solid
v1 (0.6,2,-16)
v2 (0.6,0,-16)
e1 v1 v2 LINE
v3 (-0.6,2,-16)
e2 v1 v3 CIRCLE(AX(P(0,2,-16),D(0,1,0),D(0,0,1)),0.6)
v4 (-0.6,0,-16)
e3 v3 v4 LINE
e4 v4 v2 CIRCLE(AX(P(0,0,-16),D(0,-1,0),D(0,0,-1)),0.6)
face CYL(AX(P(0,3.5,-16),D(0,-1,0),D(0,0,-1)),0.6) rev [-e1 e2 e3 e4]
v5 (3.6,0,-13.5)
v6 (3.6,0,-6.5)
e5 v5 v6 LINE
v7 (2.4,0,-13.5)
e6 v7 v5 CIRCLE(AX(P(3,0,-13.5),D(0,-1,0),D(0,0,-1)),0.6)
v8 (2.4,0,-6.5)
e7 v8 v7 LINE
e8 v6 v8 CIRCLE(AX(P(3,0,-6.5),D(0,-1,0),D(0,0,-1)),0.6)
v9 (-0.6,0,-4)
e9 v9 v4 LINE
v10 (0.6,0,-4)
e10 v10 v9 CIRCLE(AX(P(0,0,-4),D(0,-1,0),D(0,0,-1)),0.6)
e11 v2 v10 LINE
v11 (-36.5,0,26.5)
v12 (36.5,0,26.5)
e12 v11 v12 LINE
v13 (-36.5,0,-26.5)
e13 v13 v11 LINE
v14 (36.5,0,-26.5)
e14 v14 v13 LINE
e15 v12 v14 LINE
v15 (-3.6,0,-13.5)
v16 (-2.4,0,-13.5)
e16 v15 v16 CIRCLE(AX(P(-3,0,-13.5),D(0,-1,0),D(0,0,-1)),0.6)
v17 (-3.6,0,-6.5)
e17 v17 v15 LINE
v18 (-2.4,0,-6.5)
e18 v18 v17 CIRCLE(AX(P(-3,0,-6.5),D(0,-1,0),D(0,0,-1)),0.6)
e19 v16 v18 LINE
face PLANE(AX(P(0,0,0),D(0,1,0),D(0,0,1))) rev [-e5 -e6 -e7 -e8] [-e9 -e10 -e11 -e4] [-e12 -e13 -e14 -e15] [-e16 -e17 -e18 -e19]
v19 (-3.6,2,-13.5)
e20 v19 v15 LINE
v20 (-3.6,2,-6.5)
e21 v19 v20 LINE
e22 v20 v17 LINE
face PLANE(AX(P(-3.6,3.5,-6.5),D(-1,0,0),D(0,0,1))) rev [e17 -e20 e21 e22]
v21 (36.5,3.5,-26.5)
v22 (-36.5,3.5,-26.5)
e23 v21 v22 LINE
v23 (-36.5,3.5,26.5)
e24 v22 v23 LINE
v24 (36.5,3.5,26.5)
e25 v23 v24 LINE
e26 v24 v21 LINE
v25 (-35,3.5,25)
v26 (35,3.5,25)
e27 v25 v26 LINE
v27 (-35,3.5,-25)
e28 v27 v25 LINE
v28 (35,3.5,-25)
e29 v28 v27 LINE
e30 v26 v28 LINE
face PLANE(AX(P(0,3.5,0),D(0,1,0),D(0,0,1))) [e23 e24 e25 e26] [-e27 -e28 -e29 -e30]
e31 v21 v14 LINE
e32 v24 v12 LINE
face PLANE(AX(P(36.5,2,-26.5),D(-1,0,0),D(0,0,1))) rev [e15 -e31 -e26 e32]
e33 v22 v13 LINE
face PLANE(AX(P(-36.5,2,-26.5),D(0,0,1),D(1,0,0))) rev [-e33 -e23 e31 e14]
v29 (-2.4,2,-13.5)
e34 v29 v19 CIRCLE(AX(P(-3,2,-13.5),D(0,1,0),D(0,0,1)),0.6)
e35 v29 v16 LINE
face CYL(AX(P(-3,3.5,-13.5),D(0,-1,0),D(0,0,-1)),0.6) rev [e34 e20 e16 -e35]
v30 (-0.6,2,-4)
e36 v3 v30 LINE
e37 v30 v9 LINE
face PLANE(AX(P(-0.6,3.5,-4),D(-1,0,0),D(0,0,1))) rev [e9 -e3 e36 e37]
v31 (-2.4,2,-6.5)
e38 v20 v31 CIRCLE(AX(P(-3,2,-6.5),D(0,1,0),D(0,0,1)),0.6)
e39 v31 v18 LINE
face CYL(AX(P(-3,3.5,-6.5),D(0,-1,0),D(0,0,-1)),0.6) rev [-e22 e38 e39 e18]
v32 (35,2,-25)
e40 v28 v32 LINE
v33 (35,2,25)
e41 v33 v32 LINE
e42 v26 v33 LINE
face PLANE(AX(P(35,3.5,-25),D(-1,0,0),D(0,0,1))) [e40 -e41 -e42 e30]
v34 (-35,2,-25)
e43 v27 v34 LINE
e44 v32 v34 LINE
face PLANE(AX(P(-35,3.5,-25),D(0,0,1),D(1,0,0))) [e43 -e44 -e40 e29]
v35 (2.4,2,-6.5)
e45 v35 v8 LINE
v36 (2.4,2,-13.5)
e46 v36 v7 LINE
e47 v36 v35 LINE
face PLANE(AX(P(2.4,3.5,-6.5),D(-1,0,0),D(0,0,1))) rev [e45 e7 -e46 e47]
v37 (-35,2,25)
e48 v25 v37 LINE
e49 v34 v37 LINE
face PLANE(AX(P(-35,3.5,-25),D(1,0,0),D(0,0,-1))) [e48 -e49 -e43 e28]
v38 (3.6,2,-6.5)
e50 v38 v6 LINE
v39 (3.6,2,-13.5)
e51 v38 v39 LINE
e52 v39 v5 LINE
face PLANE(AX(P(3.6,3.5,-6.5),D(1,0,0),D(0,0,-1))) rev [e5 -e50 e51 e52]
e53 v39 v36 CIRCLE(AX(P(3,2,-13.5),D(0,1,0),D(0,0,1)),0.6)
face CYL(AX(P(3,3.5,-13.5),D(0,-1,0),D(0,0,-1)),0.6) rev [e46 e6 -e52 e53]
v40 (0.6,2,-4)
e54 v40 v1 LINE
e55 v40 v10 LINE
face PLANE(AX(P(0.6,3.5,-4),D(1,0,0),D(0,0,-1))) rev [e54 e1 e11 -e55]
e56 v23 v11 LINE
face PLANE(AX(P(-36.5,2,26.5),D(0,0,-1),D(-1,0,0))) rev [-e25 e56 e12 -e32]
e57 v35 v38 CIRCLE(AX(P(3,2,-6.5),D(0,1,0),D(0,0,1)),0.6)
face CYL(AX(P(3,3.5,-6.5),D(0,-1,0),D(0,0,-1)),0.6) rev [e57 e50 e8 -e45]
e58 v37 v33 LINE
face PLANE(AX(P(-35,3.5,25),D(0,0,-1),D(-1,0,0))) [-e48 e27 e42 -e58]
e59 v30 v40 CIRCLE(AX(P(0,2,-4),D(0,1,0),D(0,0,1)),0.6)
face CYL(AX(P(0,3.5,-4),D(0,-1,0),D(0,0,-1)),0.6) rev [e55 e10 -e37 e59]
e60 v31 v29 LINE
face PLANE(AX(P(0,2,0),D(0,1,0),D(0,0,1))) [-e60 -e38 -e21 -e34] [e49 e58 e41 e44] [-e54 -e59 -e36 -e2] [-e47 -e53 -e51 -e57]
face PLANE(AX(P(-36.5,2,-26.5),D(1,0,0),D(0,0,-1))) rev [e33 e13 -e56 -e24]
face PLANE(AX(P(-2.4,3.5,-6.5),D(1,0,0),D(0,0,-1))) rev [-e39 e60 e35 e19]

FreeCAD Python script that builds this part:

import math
import FreeCAD as App
import Part
import Sketcher

V = App.Vector
Q = App.Units.Quantity


def add_polygon(sketch, points):
    """Adds a closed chain of lines whose ends are joined by coincident constraints."""
    first, n = sketch.GeometryCount, len(points)
    for a, b in zip(points, points[1:] + points[:1]):
        sketch.addGeometry(Part.LineSegment(App.Vector(*a, 0), App.Vector(*b, 0)), False)
    for i in range(n):
        sketch.addConstraint(Sketcher.Constraint("Coincident", first + i, 2, first + (i + 1) % n, 1))

doc = App.newDocument("Part")
params = doc.addObject("Spreadsheet::Sheet", "Params")
for row, (alias, value) in enumerate([
    ("sketch1_width", "73 mm"),
    ("sketch1_height", "53 mm"),
    ("pad1_length", "2 mm"),
    ("sketch2_width", "73 mm"),
    ("sketch2_width2", "70 mm"),
    ("sketch2_height", "53 mm"),
    ("sketch2_height2", "50 mm"),
    ("pad2_length", "1.5 mm"),
    ("sketch3_radius", "0.6 mm"),
    ("sketch3_height", "12 mm"),
    ("sketch3_height2", "7 mm"),
], start=1):
    params.set(f"A{row}", alias)
    params.set(f"B{row}", "=" + value)
    params.setAlias(f"B{row}", alias)

body = doc.addObject("PartDesign::Body", "Body")

# Sketch on XZ plane
sketch1 = body.newObject("Sketcher::SketchObject", "Sketch")
sketch1.AttachmentSupport = (doc.getObject("XZ_Plane"), [""])
sketch1.MapMode = "FlatFace"
add_polygon(sketch1, [(-36, -26), (-36, 26), (36, 26), (36, -26)])  # lines 0-3
sketch1.addConstraint([
    Sketcher.Constraint("Vertical", 0),
    Sketcher.Constraint("Horizontal", 1),
    Sketcher.Constraint("Vertical", 2),
    Sketcher.Constraint("Horizontal", 3),
    Sketcher.Constraint("Symmetric", 0, 2, 2, 2, -1, 1),
    Sketcher.Constraint("DistanceX", 1, 1, 1, 2, Q("73 mm")),
    Sketcher.Constraint("DistanceY", 0, 1, 0, 2, Q("53 mm")),
])
sketch1.setExpression("Constraints[9]", "Params.sketch1_width")
sketch1.setExpression("Constraints[10]", "Params.sketch1_height")
pad1 = body.newObject("PartDesign::Pad", "Pad")
pad1.Profile = sketch1
pad1.setExpression("Length", "Params.pad1_length")
pad1.Reversed = True

# Sketch on XZ plane
sketch2 = body.newObject("Sketcher::SketchObject", "Sketch001")
sketch2.AttachmentSupport = (doc.getObject("XZ_Plane"), [""])
sketch2.MapMode = "FlatFace"
sketch2.AttachmentOffset = App.Placement(V(0, 0, -2), App.Rotation())
add_polygon(sketch2, [(-36, -26), (-36, 26), (36, 26), (36, -26)])  # lines 0-3
add_polygon(sketch2, [(35, 25), (-35, 25), (-35, -25), (35, -25)])  # lines 4-7
sketch2.addConstraint([
    Sketcher.Constraint("Vertical", 0),
    Sketcher.Constraint("Horizontal", 1),
    Sketcher.Constraint("Vertical", 2),
    Sketcher.Constraint("Horizontal", 3),
    Sketcher.Constraint("Horizontal", 4),
    Sketcher.Constraint("Vertical", 5),
    Sketcher.Constraint("Horizontal", 6),
    Sketcher.Constraint("Vertical", 7),
    Sketcher.Constraint("Symmetric", 0, 2, 2, 2, -1, 1),
    Sketcher.Constraint("Symmetric", 4, 2, 6, 2, -1, 1),
    Sketcher.Constraint("DistanceX", 1, 1, 1, 2, Q("73 mm")),
    Sketcher.Constraint("DistanceX", 4, 2, 4, 1, Q("70 mm")),
    Sketcher.Constraint("DistanceY", 0, 1, 0, 2, Q("53 mm")),
    Sketcher.Constraint("DistanceY", 5, 2, 5, 1, Q("50 mm")),
])
sketch2.setExpression("Constraints[18]", "Params.sketch2_width")
sketch2.setExpression("Constraints[19]", "Params.sketch2_width2")
sketch2.setExpression("Constraints[20]", "Params.sketch2_height")
sketch2.setExpression("Constraints[21]", "Params.sketch2_height2")
pad2 = body.newObject("PartDesign::Pad", "Pad001")
pad2.Profile = sketch2
pad2.setExpression("Length", "Params.pad2_length")
pad2.Reversed = True

# Sketch on XZ plane
sketch3 = body.newObject("Sketcher::SketchObject", "Sketch002")
sketch3.AttachmentSupport = (doc.getObject("XZ_Plane"), [""])
sketch3.MapMode = "FlatFace"
sketch3.addGeometry([
    Part.LineSegment(V(0.6, -16, 0), V(0.6, -4, 0)),  # 0
    Part.ArcOfCircle(Part.Circle(V(0, -4, 0), V(0, 0, 1), 0.6), math.radians(0), math.radians(180)),  # 1
    Part.LineSegment(V(-0.6, -4, 0), V(-0.6, -16, 0)),  # 2
    Part.ArcOfCircle(Part.Circle(V(0, -16, 0), V(0, 0, 1), 0.6), math.radians(180), math.radians(360)),  # 3
    Part.LineSegment(V(3.6, -13.5, 0), V(3.6, -6.5, 0)),  # 4
    Part.ArcOfCircle(Part.Circle(V(3, -6.5, 0), V(0, 0, 1), 0.6), math.radians(0), math.radians(180)),  # 5
    Part.LineSegment(V(2.4, -6.5, 0), V(2.4, -13.5, 0)),  # 6
    Part.ArcOfCircle(Part.Circle(V(3, -13.5, 0), V(0, 0, 1), 0.6), math.radians(180), math.radians(360)),  # 7
    Part.LineSegment(V(-2.4, -13.5, 0), V(-2.4, -6.5, 0)),  # 8
    Part.ArcOfCircle(Part.Circle(V(-3, -6.5, 0), V(0, 0, 1), 0.6), math.radians(0), math.radians(180)),  # 9
    Part.LineSegment(V(-3.6, -6.5, 0), V(-3.6, -13.5, 0)),  # 10
    Part.ArcOfCircle(Part.Circle(V(-3, -13.5, 0), V(0, 0, 1), 0.6), math.radians(180), math.radians(360)),  # 11
], False)
sketch3.addConstraint([
    Sketcher.Constraint("Tangent", 0, 2, 1, 1),
    Sketcher.Constraint("Tangent", 1, 2, 2, 1),
    Sketcher.Constraint("Tangent", 2, 2, 3, 1),
    Sketcher.Constraint("Tangent", 3, 2, 0, 1),
    Sketcher.Constraint("Tangent", 4, 2, 5, 1),
    Sketcher.Constraint("Tangent", 5, 2, 6, 1),
    Sketcher.Constraint("Tangent", 6, 2, 7, 1),
    Sketcher.Constraint("Tangent", 7, 2, 4, 1),
    Sketcher.Constraint("Tangent", 8, 2, 9, 1),
    Sketcher.Constraint("Tangent", 9, 2, 10, 1),
    Sketcher.Constraint("Tangent", 10, 2, 11, 1),
    Sketcher.Constraint("Tangent", 11, 2, 8, 1),
    Sketcher.Constraint("Vertical", 0),
    Sketcher.Constraint("Vertical", 2),
    Sketcher.Constraint("Vertical", 4),
    Sketcher.Constraint("Vertical", 6),
    Sketcher.Constraint("Vertical", 8),
    Sketcher.Constraint("Vertical", 10),
    Sketcher.Constraint("Equal", 3, 5),
    Sketcher.Constraint("Equal", 7, 9),
    Sketcher.Constraint("Symmetric", 5, 3, 9, 3, -2),
    Sketcher.Constraint("PointOnObject", 1, 3, -2),
    Sketcher.Constraint("Horizontal", 7, 3, 11, 3),
    Sketcher.Constraint("Radius", 1, Q("0.6 mm")),
    Sketcher.Constraint("DistanceY", 0, 1, 0, 2, Q("12 mm")),
    Sketcher.Constraint("DistanceY", 4, 1, 4, 2, Q("7 mm")),
    Sketcher.Constraint("DistanceY", 1, 3, -1, 1, Q("4 mm")),
    Sketcher.Constraint("DistanceX", -1, 1, 5, 3, Q("3 mm")),
    Sketcher.Constraint("DistanceY", 5, 3, -1, 1, Q("6.5 mm")),
])
sketch3.setExpression("Constraints[23]", "Params.sketch3_radius")
sketch3.setExpression("Constraints[24]", "Params.sketch3_height")
sketch3.setExpression("Constraints[25]", "Params.sketch3_height2")
pocket1 = body.newObject("PartDesign::Pocket", "Pocket")
pocket1.Profile = sketch3
pocket1.Type = "ThroughAll"

doc.recompute()
